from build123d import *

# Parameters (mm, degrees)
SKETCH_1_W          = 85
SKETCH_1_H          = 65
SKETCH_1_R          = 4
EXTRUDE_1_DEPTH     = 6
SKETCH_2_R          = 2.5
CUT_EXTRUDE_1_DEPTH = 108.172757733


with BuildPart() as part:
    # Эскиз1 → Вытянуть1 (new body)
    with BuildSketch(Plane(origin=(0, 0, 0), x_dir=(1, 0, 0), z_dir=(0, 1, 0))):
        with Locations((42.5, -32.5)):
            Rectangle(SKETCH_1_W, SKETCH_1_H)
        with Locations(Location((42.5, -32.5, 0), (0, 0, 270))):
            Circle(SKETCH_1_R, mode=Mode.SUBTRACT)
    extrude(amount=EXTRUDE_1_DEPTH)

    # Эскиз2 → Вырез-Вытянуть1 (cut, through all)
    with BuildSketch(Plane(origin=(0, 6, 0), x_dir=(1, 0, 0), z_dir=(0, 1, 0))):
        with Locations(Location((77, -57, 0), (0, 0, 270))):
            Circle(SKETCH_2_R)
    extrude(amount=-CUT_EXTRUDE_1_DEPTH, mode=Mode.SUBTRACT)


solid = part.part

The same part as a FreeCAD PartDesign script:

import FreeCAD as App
import Part
import Sketcher

doc = App.newDocument("Part")
body = doc.addObject("PartDesign::Body", "Body")

# Sketch on XZ plane
sketch1 = body.newObject("Sketcher::SketchObject", "Sketch")
sketch1.AttachmentSupport = (doc.getObject("XZ_Plane"), [""])
sketch1.MapMode = "FlatFace"
sketch1.addGeometry(Part.LineSegment(App.Vector(0, 0, 0), App.Vector(0, 65, 0)), False)
sketch1.addGeometry(Part.LineSegment(App.Vector(0, 65, 0), App.Vector(85, 65, 0)), False)
sketch1.addGeometry(Part.LineSegment(App.Vector(85, 65, 0), App.Vector(85, 0, 0)), False)
sketch1.addGeometry(Part.LineSegment(App.Vector(85, 0, 0), App.Vector(0, 0, 0)), False)
sketch1.addGeometry(Part.Circle(App.Vector(42.5, 32.5, 0), App.Vector(0, 0, 1), 4), False)
sketch1.addConstraint(Sketcher.Constraint("Coincident", 0, 2, 1, 1))
sketch1.addConstraint(Sketcher.Constraint("Coincident", 1, 2, 2, 1))
sketch1.addConstraint(Sketcher.Constraint("Coincident", 2, 2, 3, 1))
sketch1.addConstraint(Sketcher.Constraint("Coincident", 3, 2, 0, 1))
sketch1.addConstraint(Sketcher.Constraint("Vertical", 0))
sketch1.addConstraint(Sketcher.Constraint("Horizontal", 1))
sketch1.addConstraint(Sketcher.Constraint("Vertical", 2))
sketch1.addConstraint(Sketcher.Constraint("Horizontal", 3))
sketch1.addConstraint(Sketcher.Constraint("Coincident", 3, 2, -1, 1))
sketch1.addConstraint(Sketcher.Constraint("Diameter", 4, 8.0))
sketch1.addConstraint(Sketcher.Constraint("DistanceX", 1, 1, 1, 2, 85.0))
sketch1.addConstraint(Sketcher.Constraint("DistanceY", 0, 1, 0, 2, 65.0))
sketch1.addConstraint(Sketcher.Constraint("DistanceX", -1, 1, 4, 3, 42.5))
sketch1.addConstraint(Sketcher.Constraint("DistanceY", -1, 1, 4, 3, 32.5))
pad1 = body.newObject("PartDesign::Pad", "Pad")
pad1.Profile = sketch1
pad1.Length = 6
pad1.Reversed = True

# Sketch on XZ plane
sketch2 = body.newObject("Sketcher::SketchObject", "Sketch001")
sketch2.AttachmentSupport = (doc.getObject("XZ_Plane"), [""])
sketch2.MapMode = "FlatFace"
sketch2.AttachmentOffset = App.Placement(App.Vector(0, 0, -6), App.Rotation())
sketch2.addGeometry(Part.Circle(App.Vector(77, 57, 0), App.Vector(0, 0, 1), 2.5), False)
sketch2.addConstraint(Sketcher.Constraint("Diameter", 0, 5.0))
sketch2.addConstraint(Sketcher.Constraint("DistanceX", -1, 1, 0, 3, 77.0))
sketch2.addConstraint(Sketcher.Constraint("DistanceY", -1, 1, 0, 3, 57.0))
pocket1 = body.newObject("PartDesign::Pocket", "Pocket")
pocket1.Profile = sketch2
pocket1.Type = "ThroughAll"
pocket1.Reversed = True

doc.recompute()
